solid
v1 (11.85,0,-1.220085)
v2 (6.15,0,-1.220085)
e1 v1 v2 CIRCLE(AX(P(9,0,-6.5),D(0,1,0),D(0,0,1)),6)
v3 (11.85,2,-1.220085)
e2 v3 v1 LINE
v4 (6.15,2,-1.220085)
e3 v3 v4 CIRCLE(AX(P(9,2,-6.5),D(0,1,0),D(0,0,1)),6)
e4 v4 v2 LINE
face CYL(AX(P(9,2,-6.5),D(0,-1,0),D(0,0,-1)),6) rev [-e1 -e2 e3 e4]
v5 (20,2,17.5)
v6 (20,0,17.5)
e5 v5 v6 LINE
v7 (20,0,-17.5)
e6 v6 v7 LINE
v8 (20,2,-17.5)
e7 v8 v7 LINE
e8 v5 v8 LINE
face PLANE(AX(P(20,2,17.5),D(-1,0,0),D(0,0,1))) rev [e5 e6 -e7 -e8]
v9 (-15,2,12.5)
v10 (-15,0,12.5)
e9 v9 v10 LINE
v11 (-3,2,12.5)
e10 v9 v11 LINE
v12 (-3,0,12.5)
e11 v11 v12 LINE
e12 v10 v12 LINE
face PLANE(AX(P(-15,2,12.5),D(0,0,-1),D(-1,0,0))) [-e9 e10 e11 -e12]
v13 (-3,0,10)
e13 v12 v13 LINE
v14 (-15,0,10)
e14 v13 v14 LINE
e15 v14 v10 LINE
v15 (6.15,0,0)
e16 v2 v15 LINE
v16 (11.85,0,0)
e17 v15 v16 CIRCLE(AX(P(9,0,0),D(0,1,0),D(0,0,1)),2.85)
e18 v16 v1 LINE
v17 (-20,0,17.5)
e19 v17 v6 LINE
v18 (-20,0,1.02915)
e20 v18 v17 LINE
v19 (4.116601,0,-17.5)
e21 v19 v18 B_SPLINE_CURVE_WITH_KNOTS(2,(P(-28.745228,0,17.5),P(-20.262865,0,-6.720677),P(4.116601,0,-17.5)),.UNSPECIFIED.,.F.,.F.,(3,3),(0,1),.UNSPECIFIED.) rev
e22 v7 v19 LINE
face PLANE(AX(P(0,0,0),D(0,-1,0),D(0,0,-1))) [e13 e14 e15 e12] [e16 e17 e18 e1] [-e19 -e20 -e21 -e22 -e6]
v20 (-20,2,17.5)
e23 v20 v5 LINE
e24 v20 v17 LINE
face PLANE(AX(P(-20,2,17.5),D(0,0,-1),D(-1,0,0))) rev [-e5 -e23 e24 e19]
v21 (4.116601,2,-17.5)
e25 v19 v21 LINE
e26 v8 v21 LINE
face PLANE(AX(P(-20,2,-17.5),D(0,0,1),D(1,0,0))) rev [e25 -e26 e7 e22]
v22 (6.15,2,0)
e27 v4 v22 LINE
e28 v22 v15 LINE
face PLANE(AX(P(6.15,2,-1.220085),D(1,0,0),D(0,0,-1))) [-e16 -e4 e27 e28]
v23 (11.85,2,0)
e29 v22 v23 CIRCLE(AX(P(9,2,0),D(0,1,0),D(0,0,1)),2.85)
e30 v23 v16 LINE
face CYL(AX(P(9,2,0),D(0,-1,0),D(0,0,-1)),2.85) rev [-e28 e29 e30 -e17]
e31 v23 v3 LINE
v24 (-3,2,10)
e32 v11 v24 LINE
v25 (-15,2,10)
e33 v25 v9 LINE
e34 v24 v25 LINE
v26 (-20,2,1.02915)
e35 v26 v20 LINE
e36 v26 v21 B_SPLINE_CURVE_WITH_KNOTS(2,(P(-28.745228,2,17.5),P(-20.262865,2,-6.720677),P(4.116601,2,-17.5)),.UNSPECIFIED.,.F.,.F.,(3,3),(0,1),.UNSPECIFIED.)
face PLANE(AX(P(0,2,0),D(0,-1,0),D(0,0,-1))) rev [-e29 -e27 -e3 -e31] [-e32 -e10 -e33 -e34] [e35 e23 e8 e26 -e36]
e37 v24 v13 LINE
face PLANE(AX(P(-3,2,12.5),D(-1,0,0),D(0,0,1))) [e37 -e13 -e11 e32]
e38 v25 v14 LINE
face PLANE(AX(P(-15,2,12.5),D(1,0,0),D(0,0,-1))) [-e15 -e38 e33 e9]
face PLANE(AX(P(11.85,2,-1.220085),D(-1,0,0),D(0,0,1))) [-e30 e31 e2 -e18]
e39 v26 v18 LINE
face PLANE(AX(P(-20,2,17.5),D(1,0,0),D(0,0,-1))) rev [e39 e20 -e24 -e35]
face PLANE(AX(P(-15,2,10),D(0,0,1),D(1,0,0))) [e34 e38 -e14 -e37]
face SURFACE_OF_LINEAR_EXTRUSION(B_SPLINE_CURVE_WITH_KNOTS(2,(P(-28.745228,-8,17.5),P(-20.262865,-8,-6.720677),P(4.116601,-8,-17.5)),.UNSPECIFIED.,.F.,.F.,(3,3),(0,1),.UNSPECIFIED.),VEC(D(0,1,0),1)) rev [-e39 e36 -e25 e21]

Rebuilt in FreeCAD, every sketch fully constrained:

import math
import FreeCAD as App
import Part
import Sketcher
Q = App.Units.Quantity

doc = App.newDocument("Part")
params = doc.addObject("Spreadsheet::Sheet", "Params")
for row, (alias, value) in enumerate([
    ("sketch1_radius", "6 mm"),
    ("sketch1_width", "40 mm"),
    ("sketch1_width2", "12 mm"),
    ("sketch1_height", "35 mm"),
    ("sketch1_radius2", "2.85 mm"),
    ("pad1_length", "2 mm"),
    ("pocket1_length", "10 mm"),
], start=1):
    params.set(f"A{row}", alias)
    params.set(f"B{row}", "=" + value)
    params.setAlias(f"B{row}", alias)

body = doc.addObject("PartDesign::Body", "Body")

sketch1 = body.newObject("Sketcher::SketchObject", "Sketch")
sketch1.AttachmentSupport = (doc.getObject("XZ_Plane"), [""])
sketch1.MapMode = "FlatFace"
sketch1.addGeometry([
    Part.LineSegment(App.Vector(-20, -17.5, 0), App.Vector(-20, 17.5, 0)),
    Part.LineSegment(App.Vector(-20, 17.5, 0), App.Vector(20, 17.5, 0)),
    Part.LineSegment(App.Vector(20, 17.5, 0), App.Vector(20, -17.5, 0)),
    Part.LineSegment(App.Vector(20, -17.5, 0), App.Vector(-20, -17.5, 0)),
    Part.LineSegment(App.Vector(-3, 12.5, 0), App.Vector(-15, 12.5, 0)),
    Part.LineSegment(App.Vector(-15, 12.5, 0), App.Vector(-15, 10, 0)),
    Part.LineSegment(App.Vector(-15, 10, 0), App.Vector(-3, 10, 0)),
    Part.LineSegment(App.Vector(-3, 10, 0), App.Vector(-3, 12.5, 0)),
    Part.LineSegment(App.Vector(6.15, 0, 0), App.Vector(6.15, -1.220085, 0)),
    Part.ArcOfCircle(Part.Circle(App.Vector(9, -6.5, 0), App.Vector(0, 0, 1), 6), math.radians(118.35935), math.radians(421.64065)),
    Part.LineSegment(App.Vector(11.85, -1.220085, 0), App.Vector(11.85, 0, 0)),
    Part.ArcOfCircle(Part.Circle(App.Vector(9, 0, 0), App.Vector(0, 0, 1), 2.85), math.radians(0), math.radians(180)),
], False)
sketch1.addConstraint([
    Sketcher.Constraint("Coincident", 0, 2, 1, 1),
    Sketcher.Constraint("Coincident", 1, 2, 2, 1),
    Sketcher.Constraint("Coincident", 2, 2, 3, 1),
    Sketcher.Constraint("Coincident", 3, 2, 0, 1),
    Sketcher.Constraint("Coincident", 4, 2, 5, 1),
    Sketcher.Constraint("Coincident", 5, 2, 6, 1),
    Sketcher.Constraint("Coincident", 6, 2, 7, 1),
    Sketcher.Constraint("Coincident", 7, 2, 4, 1),
    Sketcher.Constraint("Coincident", 8, 2, 9, 1),
    Sketcher.Constraint("Coincident", 9, 2, 10, 1),
    Sketcher.Constraint("Tangent", 10, 2, 11, 1),
    Sketcher.Constraint("Tangent", 11, 2, 8, 1),
    Sketcher.Constraint("Vertical", 0),
    Sketcher.Constraint("Horizontal", 1),
    Sketcher.Constraint("Vertical", 2),
    Sketcher.Constraint("Horizontal", 3),
    Sketcher.Constraint("Horizontal", 4),
    Sketcher.Constraint("Vertical", 5),
    Sketcher.Constraint("Horizontal", 6),
    Sketcher.Constraint("Vertical", 7),
    Sketcher.Constraint("Vertical", 8),
    Sketcher.Constraint("Vertical", 10),
    Sketcher.Constraint("Symmetric", 0, 2, 2, 2, -1, 1),
    Sketcher.Constraint("PointOnObject", 11, 3, -1),
    Sketcher.Constraint("Horizontal", 8, 2, 9, 2),
    Sketcher.Constraint("Radius", 9, Q("6 mm")),
    Sketcher.Constraint("DistanceX", 1, 1, 1, 2, Q("40 mm")),
    Sketcher.Constraint("DistanceX", 4, 2, 4, 1, Q("12 mm")),
    Sketcher.Constraint("DistanceY", 0, 1, 0, 2, Q("35 mm")),
    Sketcher.Constraint("Radius", 11, Q("2.85 mm")),
    Sketcher.Constraint("DistanceY", 5, 2, 5, 1, Q("2.5 mm")),
    Sketcher.Constraint("DistanceX", -1, 1, 9, 3, Q("9 mm")),
    Sketcher.Constraint("DistanceX", 4, 2, -1, 1, Q("15 mm")),
    Sketcher.Constraint("DistanceY", -1, 1, 5, 2, Q("10 mm")),
    Sketcher.Constraint("DistanceY", 9, 3, 0, 2, Q("24 mm")),
])
sketch1.setExpression("Constraints[25]", "Params.sketch1_radius")
sketch1.setExpression("Constraints[26]", "Params.sketch1_width")
sketch1.setExpression("Constraints[27]", "Params.sketch1_width2")
sketch1.setExpression("Constraints[28]", "Params.sketch1_height")
sketch1.setExpression("Constraints[29]", "Params.sketch1_radius2")
pad1 = body.newObject("PartDesign::Pad", "Pad")
pad1.Profile = sketch1
pad1.setExpression("Length", "Params.pad1_length")
pad1.Reversed = True

sketch2 = body.newObject("Sketcher::SketchObject", "Sketch001")
sketch2.AttachmentSupport = (doc.getObject("XZ_Plane"), [""])
sketch2.MapMode = "FlatFace"
sketch2.AttachmentOffset = App.Placement(App.Vector(0, 0, -2), App.Rotation())
sketch2.addGeometry([
    Part.LineSegment(App.Vector(-25.633078, -26.552925, 0), App.Vector(-28.745228, 17.5, 0)),
    Part.BSplineCurve([App.Vector(4.116601, -17.5, 0), App.Vector(-20.262865, -6.720677, 0), App.Vector(-28.745228, 17.5, 0)], [3, 3], [0, 1], False, 2, [1, 1, 1], False),
    Part.LineSegment(App.Vector(4.116601, -17.5, 0), App.Vector(-25.633078, -26.552925, 0)),
], False)
sketch2.addConstraint([
    Sketcher.Constraint("Block", 1),
    Sketcher.Constraint("Coincident", 0, 2, 1, 2),
    Sketcher.Constraint("Coincident", 1, 1, 2, 1),
    Sketcher.Constraint("Coincident", 2, 2, 0, 1),
    Sketcher.Constraint("Distance", 0, Q("44.162718 mm")),
    Sketcher.Constraint("DistanceX", 0, 2, 2, 2, Q("3.11215 mm")),
])
pocket1 = body.newObject("PartDesign::Pocket", "Pocket")
pocket1.Profile = sketch2
pocket1.setExpression("Length", "Params.pocket1_length")
pocket1.Reversed = True

doc.recompute()
